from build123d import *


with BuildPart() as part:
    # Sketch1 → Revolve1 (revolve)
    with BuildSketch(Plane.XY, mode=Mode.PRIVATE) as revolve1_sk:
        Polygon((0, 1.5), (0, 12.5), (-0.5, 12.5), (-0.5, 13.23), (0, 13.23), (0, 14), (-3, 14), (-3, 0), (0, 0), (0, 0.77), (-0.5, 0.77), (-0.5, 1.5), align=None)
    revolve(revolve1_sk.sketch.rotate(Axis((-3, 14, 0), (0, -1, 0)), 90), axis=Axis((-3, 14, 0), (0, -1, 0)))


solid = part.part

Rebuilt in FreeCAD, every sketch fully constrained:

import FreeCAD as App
import Part
import Sketcher

V = App.Vector
Q = App.Units.Quantity

doc = App.newDocument("Part")
params = doc.addObject("Spreadsheet::Sheet", "Params")
for row, (alias, value) in enumerate([
    ("sketch1_width", "3 mm"),
    ("sketch1_height", "11 mm"),
    ("sketch1_height2", "14 mm"),
    ("sketch1_width2", "0.5 mm"),
    ("sketch1_height3", "0.73 mm"),
    ("revolution_angle", "360 deg"),
], start=1):
    params.set(f"A{row}", alias)
    params.set(f"B{row}", "=" + value)
    params.setAlias(f"B{row}", alias)

body = doc.addObject("PartDesign::Body", "Body")

# Sketch on XY plane
sketch1 = doc.addObject("Sketcher::SketchObject", "Sketch")
body.addObject(sketch1)
sketch1.AttachmentSupport = (doc.XY_Plane, [""])
sketch1.MapMode = "FlatFace"
sketch1.addGeometry([
    Part.LineSegment(V(0, 1.5, 0), V(0, 12.5, 0)),  # 0
    Part.LineSegment(V(0, 12.5, 0), V(-0.5, 12.5, 0)),  # 1
    Part.LineSegment(V(-0.5, 12.5, 0), V(-0.5, 13.23, 0)),  # 2
    Part.LineSegment(V(-0.5, 13.23, 0), V(0, 13.23, 0)),  # 3
    Part.LineSegment(V(0, 13.23, 0), V(0, 14, 0)),  # 4
    Part.LineSegment(V(0, 14, 0), V(-3, 14, 0)),  # 5
    Part.LineSegment(V(-3, 14, 0), V(-3, 0, 0)),  # 6
    Part.LineSegment(V(-3, 0, 0), V(0, 0, 0)),  # 7
    Part.LineSegment(V(0, 0, 0), V(0, 0.77, 0)),  # 8
    Part.LineSegment(V(0, 0.77, 0), V(-0.5, 0.77, 0)),  # 9
    Part.LineSegment(V(-0.5, 0.77, 0), V(-0.5, 1.5, 0)),  # 10
    Part.LineSegment(V(-0.5, 1.5, 0), V(0, 1.5, 0)),  # 11
], False)
sketch1.addGeometry(Part.LineSegment(V(-3, 14, 0), V(-3, 0, 0)), True)  # axis
sketch1.addConstraint([
    Sketcher.Constraint("Coincident", 0, 2, 1, 1),
    Sketcher.Constraint("Coincident", 1, 2, 2, 1),
    Sketcher.Constraint("Coincident", 2, 2, 3, 1),
    Sketcher.Constraint("Coincident", 3, 2, 4, 1),
    Sketcher.Constraint("Coincident", 4, 2, 5, 1),
    Sketcher.Constraint("Coincident", 5, 2, 6, 1),
    Sketcher.Constraint("Coincident", 6, 2, 7, 1),
    Sketcher.Constraint("Coincident", 7, 2, 8, 1),
    Sketcher.Constraint("Coincident", 8, 2, 9, 1),
    Sketcher.Constraint("Coincident", 9, 2, 10, 1),
    Sketcher.Constraint("Coincident", 10, 2, 11, 1),
    Sketcher.Constraint("Coincident", 11, 2, 0, 1),
    Sketcher.Constraint("Vertical", 0),
    Sketcher.Constraint("Horizontal", 1),
    Sketcher.Constraint("Vertical", 2),
    Sketcher.Constraint("Horizontal", 3),
    Sketcher.Constraint("Vertical", 4),
    Sketcher.Constraint("Horizontal", 5),
    Sketcher.Constraint("Vertical", 6),
    Sketcher.Constraint("Horizontal", 7),
    Sketcher.Constraint("Vertical", 8),
    Sketcher.Constraint("Horizontal", 9),
    Sketcher.Constraint("Vertical", 10),
    Sketcher.Constraint("Horizontal", 11),
    Sketcher.Constraint("Vertical", 12),
    Sketcher.Constraint("Coincident", 7, 2, -1, 1),
    Sketcher.Constraint("Coincident", 12, 1, 5, 2),
    Sketcher.Constraint("PointOnObject", 0, 2, -2),
    Sketcher.Constraint("PointOnObject", 3, 2, -2),
    Sketcher.Constraint("PointOnObject", 12, 2, -1),
    Sketcher.Constraint("Vertical", 2, 2, 9, 2),
    Sketcher.Constraint("Equal", 4, 8),
    Sketcher.Constraint("Equal", 2, 10),
    Sketcher.Constraint("DistanceX", 5, 2, 5, 1, Q("3 mm")),
    Sketcher.Constraint("DistanceY", 0, 1, 0, 2, Q("11 mm")),
    Sketcher.Constraint("DistanceY", 6, 2, 6, 1, Q("14 mm")),
    Sketcher.Constraint("DistanceX", 1, 2, 1, 1, Q("0.5 mm")),
    Sketcher.Constraint("DistanceY", 2, 1, 2, 2, Q("0.73 mm")),
])
sketch1.setExpression("Constraints[33]", "Params.sketch1_width")
sketch1.setExpression("Constraints[34]", "Params.sketch1_height")
sketch1.setExpression("Constraints[35]", "Params.sketch1_height2")
sketch1.setExpression("Constraints[36]", "Params.sketch1_width2")
sketch1.setExpression("Constraints[37]", "Params.sketch1_height3")
revolution = doc.addObject("PartDesign::Revolution", "Revolution")
body.addObject(revolution)
revolution.Profile = sketch1
revolution.ReferenceAxis = (sketch1, ["Axis0"])
revolution.setExpression("Angle", "Params.revolution_angle")

doc.recompute()
